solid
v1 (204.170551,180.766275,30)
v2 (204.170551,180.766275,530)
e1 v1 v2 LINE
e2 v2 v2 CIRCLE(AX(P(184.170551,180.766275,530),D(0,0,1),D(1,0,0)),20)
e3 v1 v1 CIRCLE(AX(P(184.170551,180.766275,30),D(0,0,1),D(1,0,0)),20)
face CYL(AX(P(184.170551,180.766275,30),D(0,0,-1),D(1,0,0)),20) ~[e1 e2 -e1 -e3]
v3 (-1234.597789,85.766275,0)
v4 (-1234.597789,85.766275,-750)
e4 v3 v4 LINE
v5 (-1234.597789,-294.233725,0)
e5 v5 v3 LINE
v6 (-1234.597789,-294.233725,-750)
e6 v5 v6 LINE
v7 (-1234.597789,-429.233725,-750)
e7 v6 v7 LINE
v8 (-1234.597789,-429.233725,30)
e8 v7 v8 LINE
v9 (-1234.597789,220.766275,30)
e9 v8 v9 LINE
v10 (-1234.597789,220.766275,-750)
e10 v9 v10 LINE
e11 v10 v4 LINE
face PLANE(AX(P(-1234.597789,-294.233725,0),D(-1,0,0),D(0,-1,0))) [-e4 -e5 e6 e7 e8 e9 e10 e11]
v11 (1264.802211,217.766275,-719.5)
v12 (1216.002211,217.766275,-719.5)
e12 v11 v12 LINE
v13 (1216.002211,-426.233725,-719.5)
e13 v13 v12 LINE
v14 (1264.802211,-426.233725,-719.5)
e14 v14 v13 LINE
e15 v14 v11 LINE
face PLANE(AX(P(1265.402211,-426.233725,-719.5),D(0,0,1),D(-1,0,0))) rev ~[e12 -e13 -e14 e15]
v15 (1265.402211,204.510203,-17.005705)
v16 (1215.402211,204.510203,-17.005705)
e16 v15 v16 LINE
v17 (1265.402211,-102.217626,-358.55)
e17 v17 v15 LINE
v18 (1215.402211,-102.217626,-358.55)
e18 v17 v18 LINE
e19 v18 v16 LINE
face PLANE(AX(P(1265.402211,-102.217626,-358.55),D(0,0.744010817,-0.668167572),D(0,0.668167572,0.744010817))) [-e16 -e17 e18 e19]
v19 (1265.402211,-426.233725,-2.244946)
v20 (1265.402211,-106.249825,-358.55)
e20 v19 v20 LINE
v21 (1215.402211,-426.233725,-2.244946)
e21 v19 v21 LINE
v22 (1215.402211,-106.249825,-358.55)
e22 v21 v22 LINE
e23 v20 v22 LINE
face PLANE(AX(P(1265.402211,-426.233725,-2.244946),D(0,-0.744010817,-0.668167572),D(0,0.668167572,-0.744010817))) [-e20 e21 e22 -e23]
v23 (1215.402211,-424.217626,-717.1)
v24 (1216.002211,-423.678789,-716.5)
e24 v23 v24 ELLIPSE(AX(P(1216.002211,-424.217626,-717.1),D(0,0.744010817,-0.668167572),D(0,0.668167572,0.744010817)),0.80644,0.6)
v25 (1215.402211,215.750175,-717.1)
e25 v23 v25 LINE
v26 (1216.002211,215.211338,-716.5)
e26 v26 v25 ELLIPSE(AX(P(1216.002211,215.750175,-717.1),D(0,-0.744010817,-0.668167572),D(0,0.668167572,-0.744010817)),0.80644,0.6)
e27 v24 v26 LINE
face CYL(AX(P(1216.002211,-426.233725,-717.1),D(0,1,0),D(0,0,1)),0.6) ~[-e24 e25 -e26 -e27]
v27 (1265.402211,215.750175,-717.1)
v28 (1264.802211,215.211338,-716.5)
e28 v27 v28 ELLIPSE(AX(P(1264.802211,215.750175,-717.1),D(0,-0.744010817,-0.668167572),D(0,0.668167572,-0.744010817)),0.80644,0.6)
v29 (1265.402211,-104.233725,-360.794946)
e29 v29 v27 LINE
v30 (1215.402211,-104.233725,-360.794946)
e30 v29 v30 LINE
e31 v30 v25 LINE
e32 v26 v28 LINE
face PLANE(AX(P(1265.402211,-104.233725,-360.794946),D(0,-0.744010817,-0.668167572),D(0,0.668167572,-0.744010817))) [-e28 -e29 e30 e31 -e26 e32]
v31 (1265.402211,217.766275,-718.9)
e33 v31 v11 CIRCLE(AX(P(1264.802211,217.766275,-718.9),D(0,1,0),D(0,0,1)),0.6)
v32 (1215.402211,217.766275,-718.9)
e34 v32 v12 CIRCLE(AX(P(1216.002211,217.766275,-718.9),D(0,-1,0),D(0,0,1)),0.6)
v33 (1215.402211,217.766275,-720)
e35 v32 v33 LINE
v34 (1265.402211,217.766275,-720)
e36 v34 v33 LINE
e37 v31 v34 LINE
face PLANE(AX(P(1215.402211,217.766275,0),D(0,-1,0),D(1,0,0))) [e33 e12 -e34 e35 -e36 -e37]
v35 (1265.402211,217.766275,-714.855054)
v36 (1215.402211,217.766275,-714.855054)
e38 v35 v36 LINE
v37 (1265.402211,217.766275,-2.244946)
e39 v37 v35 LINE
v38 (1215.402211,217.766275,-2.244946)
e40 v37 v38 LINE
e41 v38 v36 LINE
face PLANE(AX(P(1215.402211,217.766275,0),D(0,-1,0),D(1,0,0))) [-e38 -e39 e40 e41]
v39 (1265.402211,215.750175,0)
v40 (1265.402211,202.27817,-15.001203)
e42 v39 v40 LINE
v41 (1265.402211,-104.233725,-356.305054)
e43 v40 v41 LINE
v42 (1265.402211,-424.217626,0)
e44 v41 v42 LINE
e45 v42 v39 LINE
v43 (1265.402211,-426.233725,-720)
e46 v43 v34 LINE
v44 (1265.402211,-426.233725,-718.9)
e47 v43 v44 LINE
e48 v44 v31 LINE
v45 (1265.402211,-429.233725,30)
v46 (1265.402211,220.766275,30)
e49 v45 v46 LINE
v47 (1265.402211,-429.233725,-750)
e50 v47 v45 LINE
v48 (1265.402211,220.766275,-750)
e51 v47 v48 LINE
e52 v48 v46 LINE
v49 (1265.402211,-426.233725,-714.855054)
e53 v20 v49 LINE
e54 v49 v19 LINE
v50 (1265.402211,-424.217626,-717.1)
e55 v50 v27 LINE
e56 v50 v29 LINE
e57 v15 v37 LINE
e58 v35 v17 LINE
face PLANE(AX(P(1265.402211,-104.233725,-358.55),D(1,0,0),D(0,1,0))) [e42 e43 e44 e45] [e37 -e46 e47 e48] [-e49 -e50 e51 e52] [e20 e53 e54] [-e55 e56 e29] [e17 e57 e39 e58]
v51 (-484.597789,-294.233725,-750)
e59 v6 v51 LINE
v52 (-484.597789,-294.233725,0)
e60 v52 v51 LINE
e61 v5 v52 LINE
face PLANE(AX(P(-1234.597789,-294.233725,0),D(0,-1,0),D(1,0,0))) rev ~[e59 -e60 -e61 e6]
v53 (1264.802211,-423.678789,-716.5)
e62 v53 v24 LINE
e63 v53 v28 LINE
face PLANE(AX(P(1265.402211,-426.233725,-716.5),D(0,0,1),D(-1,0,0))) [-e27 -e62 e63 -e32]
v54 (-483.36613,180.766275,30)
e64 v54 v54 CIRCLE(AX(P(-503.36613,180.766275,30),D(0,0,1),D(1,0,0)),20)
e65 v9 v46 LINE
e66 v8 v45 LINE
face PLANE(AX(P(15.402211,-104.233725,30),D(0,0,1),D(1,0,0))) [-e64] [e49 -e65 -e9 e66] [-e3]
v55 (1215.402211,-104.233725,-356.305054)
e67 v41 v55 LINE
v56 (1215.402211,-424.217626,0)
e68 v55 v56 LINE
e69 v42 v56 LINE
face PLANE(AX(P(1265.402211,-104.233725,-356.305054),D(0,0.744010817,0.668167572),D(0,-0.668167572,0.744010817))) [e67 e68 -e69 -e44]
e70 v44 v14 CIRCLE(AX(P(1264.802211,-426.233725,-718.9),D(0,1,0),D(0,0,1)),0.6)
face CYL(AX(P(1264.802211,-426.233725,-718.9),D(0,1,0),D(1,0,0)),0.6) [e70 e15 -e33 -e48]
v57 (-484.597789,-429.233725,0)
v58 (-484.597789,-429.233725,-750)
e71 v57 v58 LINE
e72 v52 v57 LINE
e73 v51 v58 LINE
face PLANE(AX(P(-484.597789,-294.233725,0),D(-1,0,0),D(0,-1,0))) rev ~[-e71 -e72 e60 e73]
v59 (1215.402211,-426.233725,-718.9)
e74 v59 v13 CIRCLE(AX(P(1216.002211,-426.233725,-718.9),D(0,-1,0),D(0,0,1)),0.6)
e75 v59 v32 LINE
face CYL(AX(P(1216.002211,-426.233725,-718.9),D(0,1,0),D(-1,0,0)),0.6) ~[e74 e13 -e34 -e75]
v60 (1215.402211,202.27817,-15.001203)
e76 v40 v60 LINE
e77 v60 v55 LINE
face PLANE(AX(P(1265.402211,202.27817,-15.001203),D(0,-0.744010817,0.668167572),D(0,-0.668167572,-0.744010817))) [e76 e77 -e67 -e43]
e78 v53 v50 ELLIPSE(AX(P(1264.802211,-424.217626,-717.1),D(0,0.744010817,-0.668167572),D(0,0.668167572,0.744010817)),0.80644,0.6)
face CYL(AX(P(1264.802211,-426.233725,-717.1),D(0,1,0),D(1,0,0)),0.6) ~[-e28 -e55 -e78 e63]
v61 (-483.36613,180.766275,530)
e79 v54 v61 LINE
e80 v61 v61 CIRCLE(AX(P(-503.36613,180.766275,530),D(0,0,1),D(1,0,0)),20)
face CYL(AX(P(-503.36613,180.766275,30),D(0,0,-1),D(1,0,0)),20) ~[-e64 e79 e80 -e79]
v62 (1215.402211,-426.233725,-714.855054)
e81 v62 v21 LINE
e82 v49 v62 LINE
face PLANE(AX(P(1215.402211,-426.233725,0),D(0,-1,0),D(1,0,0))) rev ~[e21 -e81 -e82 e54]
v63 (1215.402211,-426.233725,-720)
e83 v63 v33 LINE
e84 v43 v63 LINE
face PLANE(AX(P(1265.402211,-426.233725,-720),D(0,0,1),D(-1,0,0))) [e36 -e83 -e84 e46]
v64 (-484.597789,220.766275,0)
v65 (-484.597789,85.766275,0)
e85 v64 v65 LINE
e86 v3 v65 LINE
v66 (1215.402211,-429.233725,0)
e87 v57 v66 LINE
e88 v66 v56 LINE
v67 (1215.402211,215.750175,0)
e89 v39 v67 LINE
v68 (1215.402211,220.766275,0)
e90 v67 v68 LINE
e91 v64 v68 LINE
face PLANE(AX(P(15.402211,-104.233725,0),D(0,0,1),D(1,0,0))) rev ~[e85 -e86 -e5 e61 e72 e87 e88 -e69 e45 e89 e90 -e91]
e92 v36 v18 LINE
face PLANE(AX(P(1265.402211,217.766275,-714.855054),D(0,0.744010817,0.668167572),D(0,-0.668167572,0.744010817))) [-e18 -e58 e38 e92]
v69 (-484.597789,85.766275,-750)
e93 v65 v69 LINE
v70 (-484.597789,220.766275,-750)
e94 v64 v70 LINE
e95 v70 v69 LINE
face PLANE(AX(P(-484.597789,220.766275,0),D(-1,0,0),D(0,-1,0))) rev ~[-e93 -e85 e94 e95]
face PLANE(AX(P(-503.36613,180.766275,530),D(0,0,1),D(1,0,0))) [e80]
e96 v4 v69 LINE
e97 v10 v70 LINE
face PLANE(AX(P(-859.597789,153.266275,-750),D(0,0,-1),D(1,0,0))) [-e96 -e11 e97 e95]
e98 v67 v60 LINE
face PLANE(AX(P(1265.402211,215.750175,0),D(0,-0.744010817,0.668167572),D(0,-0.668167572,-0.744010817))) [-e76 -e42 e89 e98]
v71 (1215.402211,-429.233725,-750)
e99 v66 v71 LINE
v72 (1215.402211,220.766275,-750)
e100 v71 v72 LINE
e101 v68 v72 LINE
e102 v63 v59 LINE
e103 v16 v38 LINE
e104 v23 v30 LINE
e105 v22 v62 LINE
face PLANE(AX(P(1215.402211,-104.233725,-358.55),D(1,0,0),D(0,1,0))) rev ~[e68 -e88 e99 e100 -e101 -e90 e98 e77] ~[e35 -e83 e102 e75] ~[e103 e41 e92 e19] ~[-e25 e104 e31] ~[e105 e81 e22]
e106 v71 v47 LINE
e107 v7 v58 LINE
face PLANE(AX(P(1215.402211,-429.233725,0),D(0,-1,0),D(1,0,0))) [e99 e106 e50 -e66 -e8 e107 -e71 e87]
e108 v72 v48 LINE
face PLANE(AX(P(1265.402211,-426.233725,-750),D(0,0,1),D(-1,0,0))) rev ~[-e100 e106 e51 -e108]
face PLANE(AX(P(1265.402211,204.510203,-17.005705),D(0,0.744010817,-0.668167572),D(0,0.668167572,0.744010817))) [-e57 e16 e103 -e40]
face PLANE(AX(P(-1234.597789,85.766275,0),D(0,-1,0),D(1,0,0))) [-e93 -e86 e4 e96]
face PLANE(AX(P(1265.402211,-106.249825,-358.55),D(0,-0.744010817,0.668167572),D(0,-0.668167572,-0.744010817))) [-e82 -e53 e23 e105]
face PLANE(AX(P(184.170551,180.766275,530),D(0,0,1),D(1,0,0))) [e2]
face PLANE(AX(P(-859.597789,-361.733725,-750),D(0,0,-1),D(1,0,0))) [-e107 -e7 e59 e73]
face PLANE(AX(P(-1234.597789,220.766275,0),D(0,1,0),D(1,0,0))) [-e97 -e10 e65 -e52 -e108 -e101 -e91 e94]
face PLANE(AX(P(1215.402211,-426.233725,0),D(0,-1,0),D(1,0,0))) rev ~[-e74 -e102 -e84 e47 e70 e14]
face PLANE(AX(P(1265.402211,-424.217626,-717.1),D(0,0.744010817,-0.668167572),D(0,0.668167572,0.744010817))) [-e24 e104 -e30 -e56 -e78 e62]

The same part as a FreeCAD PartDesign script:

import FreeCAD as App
import Part
import Sketcher

V = App.Vector
Q = App.Units.Quantity


def edges_at(feature, points):
    """Names of the edges that pass closest to the given points."""
    edges = feature.Shape.Edges
    near = lambda p: min(range(len(edges)), key=lambda i: edges[i].distToShape(Part.Vertex(*p))[0])
    return sorted({f"Edge{near(p) + 1}" for p in points})


def add_polygon(sketch, points):
    """Adds a closed chain of lines whose ends are joined by coincident constraints."""
    first, n = sketch.GeometryCount, len(points)
    for a, b in zip(points, points[1:] + points[:1]):
        sketch.addGeometry(Part.LineSegment(App.Vector(*a, 0), App.Vector(*b, 0)), False)
    for i in range(n):
        sketch.addConstraint(Sketcher.Constraint("Coincident", first + i, 2, first + (i + 1) % n, 1))

doc = App.newDocument("Part")
params = doc.addObject("Spreadsheet::Sheet", "Params")
for row, (alias, value) in enumerate([
    ("sketch1_width", "2500 mm"),
    ("sketch1_height", "650 mm"),
    ("pad1_length", "30 mm"),
    ("sketch2_width", "750 mm"),
    ("sketch2_height", "135 mm"),
    ("pad2_length", "750 mm"),
    ("sketch3_width", "50 mm"),
    ("sketch3_height", "3 mm"),
    ("pad3_length", "750 mm"),
    ("sketch4_width", "50 mm"),
    ("sketch4_height", "30 mm"),
    ("sketch4_height2", "3 mm"),
    ("fillet_radius", "0.6 mm"),
    ("sketch5_diameter", "40 mm"),
    ("pad5_length", "500 mm"),
    ("pad6_length", "50 mm"),
], start=1):
    params.set(f"A{row}", alias)
    params.set(f"B{row}", "=" + value)
    params.setAlias(f"B{row}", alias)

body = doc.addObject("PartDesign::Body", "Body")

# Sketch on XY plane
sketch1 = body.newObject("Sketcher::SketchObject", "Sketch")
sketch1.AttachmentSupport = (doc.getObject("XY_Plane"), [""])
sketch1.MapMode = "FlatFace"
add_polygon(sketch1, [(-1235, 221), (-1235, -429), (1265, -429), (1265, 221)])  # lines 0-3
sketch1.addConstraint(Sketcher.Constraint("Vertical", 0))
sketch1.addConstraint(Sketcher.Constraint("Horizontal", 1))
sketch1.addConstraint(Sketcher.Constraint("Vertical", 2))
sketch1.addConstraint(Sketcher.Constraint("Horizontal", 3))
sketch1.addConstraint(Sketcher.Constraint("DistanceX", 1, 1, 1, 2, Q("2500 mm")))
sketch1.addConstraint(Sketcher.Constraint("DistanceY", 0, 2, 0, 1, Q("650 mm")))
sketch1.addConstraint(Sketcher.Constraint("DistanceX", 0, 2, -1, 1, Q("1234.597789 mm")))
sketch1.addConstraint(Sketcher.Constraint("DistanceY", 0, 2, -1, 1, Q("429.233725 mm")))
sketch1.setExpression("Constraints[8]", "Params.sketch1_width")
sketch1.setExpression("Constraints[9]", "Params.sketch1_height")
pad1 = body.newObject("PartDesign::Pad", "Pad")
pad1.Profile = sketch1
pad1.setExpression("Length", "Params.pad1_length")

# Sketch on XY plane
sketch2 = body.newObject("Sketcher::SketchObject", "Sketch001")
sketch2.AttachmentSupport = (doc.getObject("XY_Plane"), [""])
sketch2.MapMode = "FlatFace"
add_polygon(sketch2, [(-1235, -429), (-1235, -294), (-485, -294), (-485, -429)])  # lines 0-3
add_polygon(sketch2, [(-1235, 86), (-1235, 221), (-485, 221), (-485, 86)])  # lines 4-7
sketch2.addConstraint(Sketcher.Constraint("Vertical", 0))
sketch2.addConstraint(Sketcher.Constraint("Horizontal", 1))
sketch2.addConstraint(Sketcher.Constraint("Vertical", 2))
sketch2.addConstraint(Sketcher.Constraint("Horizontal", 3))
sketch2.addConstraint(Sketcher.Constraint("Vertical", 4))
sketch2.addConstraint(Sketcher.Constraint("Horizontal", 5))
sketch2.addConstraint(Sketcher.Constraint("Vertical", 6))
sketch2.addConstraint(Sketcher.Constraint("Horizontal", 7))
sketch2.addConstraint(Sketcher.Constraint("Vertical", 3, 2, 4, 2))
sketch2.addConstraint(Sketcher.Constraint("Vertical", 2, 2, 5, 2))
sketch2.addConstraint(Sketcher.Constraint("Equal", 2, 4))
sketch2.addConstraint(Sketcher.Constraint("DistanceX", 1, 1, 1, 2, Q("750 mm")))
sketch2.addConstraint(Sketcher.Constraint("DistanceY", 0, 1, 0, 2, Q("135 mm")))
sketch2.addConstraint(Sketcher.Constraint("DistanceY", 0, 2, 4, 2, Q("515 mm")))
sketch2.addConstraint(Sketcher.Constraint("DistanceX", 0, 2, -1, 1, Q("1234.597789 mm")))
sketch2.addConstraint(Sketcher.Constraint("DistanceY", 0, 2, -1, 1, Q("294.233725 mm")))
sketch2.setExpression("Constraints[19]", "Params.sketch2_width")
sketch2.setExpression("Constraints[20]", "Params.sketch2_height")
pad2 = body.newObject("PartDesign::Pad", "Pad001")
pad2.Profile = sketch2
pad2.setExpression("Length", "Params.pad2_length")
pad2.Reversed = True

# Sketch on XY plane
sketch3 = body.newObject("Sketcher::SketchObject", "Sketch002")
sketch3.AttachmentSupport = (doc.getObject("XY_Plane"), [""])
sketch3.MapMode = "FlatFace"
add_polygon(sketch3, [(1215.4, -429.2), (1215.4, -426.2), (1265.4, -426.2), (1265.4, -429.2)])  # lines 0-3
add_polygon(sketch3, [(1215.4, 217.8), (1215.4, 220.8), (1265.4, 220.8), (1265.4, 217.8)])  # lines 4-7
sketch3.addConstraint(Sketcher.Constraint("Vertical", 0))
sketch3.addConstraint(Sketcher.Constraint("Horizontal", 1))
sketch3.addConstraint(Sketcher.Constraint("Vertical", 2))
sketch3.addConstraint(Sketcher.Constraint("Horizontal", 3))
sketch3.addConstraint(Sketcher.Constraint("Vertical", 4))
sketch3.addConstraint(Sketcher.Constraint("Horizontal", 5))
sketch3.addConstraint(Sketcher.Constraint("Vertical", 6))
sketch3.addConstraint(Sketcher.Constraint("Horizontal", 7))
sketch3.addConstraint(Sketcher.Constraint("Vertical", 3, 2, 4, 2))
sketch3.addConstraint(Sketcher.Constraint("Vertical", 2, 2, 5, 2))
sketch3.addConstraint(Sketcher.Constraint("Equal", 2, 4))
sketch3.addConstraint(Sketcher.Constraint("DistanceX", 1, 1, 1, 2, Q("50 mm")))
sketch3.addConstraint(Sketcher.Constraint("DistanceY", 0, 1, 0, 2, Q("3 mm")))
sketch3.addConstraint(Sketcher.Constraint("DistanceY", 0, 2, 4, 2, Q("647 mm")))
sketch3.addConstraint(Sketcher.Constraint("DistanceX", -1, 1, 0, 2, Q("1215.402211 mm")))
sketch3.addConstraint(Sketcher.Constraint("DistanceY", 0, 2, -1, 1, Q("426.233725 mm")))
sketch3.setExpression("Constraints[19]", "Params.sketch3_width")
sketch3.setExpression("Constraints[20]", "Params.sketch3_height")
pad3 = body.newObject("PartDesign::Pad", "Pad002")
pad3.Profile = sketch3
pad3.setExpression("Length", "Params.pad3_length")
pad3.Reversed = True

# Sketch on XZ plane
sketch4 = body.newObject("Sketcher::SketchObject", "Sketch003")
sketch4.AttachmentSupport = (doc.getObject("XZ_Plane"), [""])
sketch4.MapMode = "FlatFace"
sketch4.AttachmentOffset = App.Placement(V(0, 0, 426.233725), App.Rotation())
add_polygon(sketch4, [(1265.402211, -720), (1265.402211, -750), (1215.402211, -750), (1215.402211, -720)])  # lines 0-3
add_polygon(sketch4, [(1265.402211, -716.5), (1265.402211, -719.5), (1215.402211, -719.5), (1215.402211, -716.5)])  # lines 4-7
sketch4.addConstraint(Sketcher.Constraint("Vertical", 0))
sketch4.addConstraint(Sketcher.Constraint("Horizontal", 1))
sketch4.addConstraint(Sketcher.Constraint("Vertical", 2))
sketch4.addConstraint(Sketcher.Constraint("Horizontal", 3))
sketch4.addConstraint(Sketcher.Constraint("Vertical", 4))
sketch4.addConstraint(Sketcher.Constraint("Horizontal", 5))
sketch4.addConstraint(Sketcher.Constraint("Vertical", 6))
sketch4.addConstraint(Sketcher.Constraint("Horizontal", 7))
sketch4.addConstraint(Sketcher.Constraint("Vertical", 3, 2, 4, 2))
sketch4.addConstraint(Sketcher.Constraint("Vertical", 2, 2, 5, 2))
sketch4.addConstraint(Sketcher.Constraint("DistanceX", 1, 2, 1, 1, Q("50 mm")))
sketch4.addConstraint(Sketcher.Constraint("DistanceY", 0, 2, 0, 1, Q("30 mm")))
sketch4.addConstraint(Sketcher.Constraint("DistanceY", 4, 2, 4, 1, Q("3 mm")))
sketch4.addConstraint(Sketcher.Constraint("DistanceY", 0, 2, -1, 1, Q("750 mm")))
sketch4.addConstraint(Sketcher.Constraint("DistanceY", 4, 2, -1, 1, Q("719.5 mm")))
sketch4.addConstraint(Sketcher.Constraint("DistanceX", -1, 1, 0, 2, Q("1265.402211 mm")))
sketch4.setExpression("Constraints[18]", "Params.sketch4_width")
sketch4.setExpression("Constraints[19]", "Params.sketch4_height")
sketch4.setExpression("Constraints[20]", "Params.sketch4_height2")
pad4 = body.newObject("PartDesign::Pad", "Pad003")
pad4.Profile = sketch4
pad4.Type = "UpToLast"
pad4.Reversed = True
doc.recompute()

fillet = body.newObject("PartDesign::Fillet", "Fillet")
fillet.Base = (pad4, edges_at(pad4, [
    (1215.402, -104.234, -716.5),
    (1215.402, -104.234, -719.5),
    (1265.402, -104.234, -719.5),
    (1265.402, -104.234, -716.5),
]))
fillet.setExpression("Radius", "Params.fillet_radius")

# Sketch on XY plane
sketch5 = body.newObject("Sketcher::SketchObject", "Sketch004")
sketch5.AttachmentSupport = (doc.getObject("XY_Plane"), [""])
sketch5.MapMode = "FlatFace"
sketch5.AttachmentOffset = App.Placement(V(0, 0, 30), App.Rotation())
sketch5.addGeometry(Part.Circle(V(-503, 181, 0), V(0, 0, 1), 20), False)
sketch5.addGeometry(Part.Circle(V(184, 181, 0), V(0, 0, 1), 20), False)
sketch5.addConstraint(Sketcher.Constraint("Equal", 0, 1))
sketch5.addConstraint(Sketcher.Constraint("Horizontal", 0, 3, 1, 3))
sketch5.addConstraint(Sketcher.Constraint("Diameter", 0, Q("40 mm")))
sketch5.addConstraint(Sketcher.Constraint("DistanceX", 0, 3, -1, 1, Q("503.36613 mm")))
sketch5.addConstraint(Sketcher.Constraint("DistanceX", -1, 1, 1, 3, Q("184.170551 mm")))
sketch5.addConstraint(Sketcher.Constraint("DistanceY", -1, 1, 0, 3, Q("180.766275 mm")))
sketch5.setExpression("Constraints[2]", "Params.sketch5_diameter")
pad5 = body.newObject("PartDesign::Pad", "Pad004")
pad5.Profile = sketch5
pad5.setExpression("Length", "Params.pad5_length")

# Sketch on YZ plane
sketch6 = body.newObject("Sketcher::SketchObject", "Sketch005")
sketch6.AttachmentSupport = (doc.getObject("YZ_Plane"), [""])
sketch6.MapMode = "FlatFace"
sketch6.AttachmentOffset = App.Placement(V(0, 0, 1265.402211), App.Rotation())
add_polygon(sketch6, [(-426.2, -2.2), (-106.2, -358.6), (-426.2, -714.9), (-426.2, -717.1), (-424.2, -717.1), (-104.2, -360.8), (215.8, -717.1), (217.8, -717.1), (217.8, -714.9), (-102.2, -358.6), (204.5, -17), (217.8, -2.2), (217.8, 0), (215.8, 0), (202.3, -15), (-104.2, -356.3), (-424.2, 0), (-426.2, 0)])  # lines 0-17
sketch6.addConstraint(Sketcher.Constraint("Vertical", 2))
sketch6.addConstraint(Sketcher.Constraint("Horizontal", 3))
sketch6.addConstraint(Sketcher.Constraint("Horizontal", 6))
sketch6.addConstraint(Sketcher.Constraint("Vertical", 7))
sketch6.addConstraint(Sketcher.Constraint("Vertical", 11))
sketch6.addConstraint(Sketcher.Constraint("Horizontal", 12))
sketch6.addConstraint(Sketcher.Constraint("Horizontal", 16))
sketch6.addConstraint(Sketcher.Constraint("Vertical", 17))
sketch6.addConstraint(Sketcher.Constraint("PointOnObject", 11, 2, -1))
sketch6.addConstraint(Sketcher.Constraint("PointOnObject", 15, 2, -1))
sketch6.addConstraint(Sketcher.Constraint("Parallel", 1, 4))
sketch6.addConstraint(Sketcher.Constraint("Parallel", 0, 5))
sketch6.addConstraint(Sketcher.Constraint("Parallel", 5, 8))
sketch6.addConstraint(Sketcher.Constraint("Parallel", 4, 9))
sketch6.addConstraint(Sketcher.Constraint("Parallel", 9, 10))
sketch6.addConstraint(Sketcher.Constraint("Parallel", 10, 13))
sketch6.addConstraint(Sketcher.Constraint("Parallel", 13, 14))
sketch6.addConstraint(Sketcher.Constraint("Parallel", 8, 15))
sketch6.addConstraint(Sketcher.Constraint("Horizontal", 3, 2, 5, 2))
sketch6.addConstraint(Sketcher.Constraint("Horizontal", 1, 2, 7, 2))
sketch6.addConstraint(Sketcher.Constraint("Horizontal", 0, 2, 8, 2))
sketch6.addConstraint(Sketcher.Constraint("Horizontal", 10, 2, 17, 2))
sketch6.addConstraint(Sketcher.Constraint("Vertical", 7, 2, 10, 2))
sketch6.addConstraint(Sketcher.Constraint("Vertical", 5, 2, 12, 2))
sketch6.addConstraint(Sketcher.Constraint("Vertical", 4, 2, 14, 2))
sketch6.addConstraint(Sketcher.Constraint("Vertical", 3, 2, 15, 2))
sketch6.addConstraint(Sketcher.Constraint("Equal", 3, 6))
sketch6.addConstraint(Sketcher.Constraint("Equal", 7, 11))
sketch6.addConstraint(Sketcher.Constraint("Equal", 1, 4))
sketch6.addConstraint(Sketcher.Constraint("DistanceX", 1, 2, 4, 2, Q("322 mm")))
sketch6.addConstraint(Sketcher.Constraint("DistanceY", 2, 2, -1, 1, Q("717.1 mm")))
sketch6.addConstraint(Sketcher.Constraint("DistanceX", 3, 1, 3, 2, Q("2.0161 mm")))
sketch6.addConstraint(Sketcher.Constraint("Distance", 0, Q("478.89768 mm")))
sketch6.addConstraint(Sketcher.Constraint("Distance", 9, Q("459.058238 mm")))
sketch6.addConstraint(Sketcher.Constraint("DistanceX", -1, 1, 13, 2, Q("202.27817 mm")))
sketch6.addConstraint(Sketcher.Constraint("DistanceY", 14, 2, 13, 2, Q("341.303852 mm")))
pad6 = body.newObject("PartDesign::Pad", "Pad005")
pad6.Profile = sketch6
pad6.setExpression("Length", "Params.pad6_length")
pad6.Reversed = True

doc.recompute()
